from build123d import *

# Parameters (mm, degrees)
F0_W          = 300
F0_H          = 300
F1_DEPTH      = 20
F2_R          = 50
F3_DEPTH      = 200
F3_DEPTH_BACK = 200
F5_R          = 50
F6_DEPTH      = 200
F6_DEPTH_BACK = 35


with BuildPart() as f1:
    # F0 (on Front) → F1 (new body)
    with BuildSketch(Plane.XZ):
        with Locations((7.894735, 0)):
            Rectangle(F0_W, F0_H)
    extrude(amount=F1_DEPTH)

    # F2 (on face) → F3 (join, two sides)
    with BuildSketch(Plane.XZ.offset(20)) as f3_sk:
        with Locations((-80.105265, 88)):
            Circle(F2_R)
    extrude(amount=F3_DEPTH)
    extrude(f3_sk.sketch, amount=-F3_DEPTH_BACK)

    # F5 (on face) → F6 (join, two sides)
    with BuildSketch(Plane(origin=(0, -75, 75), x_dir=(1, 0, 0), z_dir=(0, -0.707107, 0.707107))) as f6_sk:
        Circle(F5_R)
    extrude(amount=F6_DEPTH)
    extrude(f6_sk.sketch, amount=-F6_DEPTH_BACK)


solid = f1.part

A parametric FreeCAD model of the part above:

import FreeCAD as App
import Part
import Sketcher
from FreeCAD import Vector
Q = App.Units.Quantity

doc = App.newDocument("Part")
body = doc.addObject("PartDesign::Body", "Body")

# Sketch on XZ plane
sketch1 = doc.addObject("Sketcher::SketchObject", "Sketch")
body.addObject(sketch1)
sketch1.AttachmentSupport = (doc.XZ_Plane, [""])
sketch1.MapMode = "FlatFace"
sketch1.addGeometry(Part.LineSegment(Vector(-142, 150, 0), Vector(-142, -150, 0)), False)
sketch1.addGeometry(Part.LineSegment(Vector(-142, -150, 0), Vector(158, -150, 0)), False)
sketch1.addGeometry(Part.LineSegment(Vector(158, -150, 0), Vector(158, 150, 0)), False)
sketch1.addGeometry(Part.LineSegment(Vector(158, 150, 0), Vector(-142, 150, 0)), False)
sketch1.addConstraint(Sketcher.Constraint("Coincident", 0, 2, 1, 1))
sketch1.addConstraint(Sketcher.Constraint("Coincident", 1, 2, 2, 1))
sketch1.addConstraint(Sketcher.Constraint("Coincident", 2, 2, 3, 1))
sketch1.addConstraint(Sketcher.Constraint("Coincident", 3, 2, 0, 1))
sketch1.addConstraint(Sketcher.Constraint("Vertical", 0))
sketch1.addConstraint(Sketcher.Constraint("Horizontal", 1))
sketch1.addConstraint(Sketcher.Constraint("Vertical", 2))
sketch1.addConstraint(Sketcher.Constraint("Horizontal", 3))
sketch1.addConstraint(Sketcher.Constraint("Equal", 3, 0))
sketch1.addConstraint(Sketcher.Constraint("DistanceX", 1, 1, 1, 2, Q("300 mm")))
sketch1.addConstraint(Sketcher.Constraint("DistanceY", 0, 2, -1, 1, Q("150 mm")))
sketch1.addConstraint(Sketcher.Constraint("DistanceX", 0, 2, -1, 1, Q("142.105265 mm")))
pad1 = doc.addObject("PartDesign::Pad", "Pad")
body.addObject(pad1)
pad1.Profile = sketch1
pad1.Length = 20

# Sketch on XZ plane
sketch2 = doc.addObject("Sketcher::SketchObject", "Sketch001")
body.addObject(sketch2)
sketch2.AttachmentSupport = (doc.XZ_Plane, [""])
sketch2.MapMode = "FlatFace"
sketch2.AttachmentOffset = App.Placement(Vector(0, 0, 20), App.Rotation())
sketch2.addGeometry(Part.Circle(Vector(-80, 88, 0), Vector(0, 0, 1), 50), False)
sketch2.addConstraint(Sketcher.Constraint("Diameter", 0, Q("100 mm")))
sketch2.addConstraint(Sketcher.Constraint("DistanceY", -1, 1, 0, 3, Q("88 mm")))
sketch2.addConstraint(Sketcher.Constraint("DistanceX", 0, 3, -1, 1, Q("80.105265 mm")))
pad2 = doc.addObject("PartDesign::Pad", "Pad001")
body.addObject(pad2)
pad2.Profile = sketch2
pad2.Type = "TwoLengths"
pad2.Length = 200
pad2.Length2 = 200

# Sketch on an angled plane
sketch3 = doc.addObject("Sketcher::SketchObject", "Sketch002")
body.addObject(sketch3)
sketch3.Placement = App.Placement(Vector(0, -75, 75), App.Rotation(Vector(1, 0, 0), Vector(0, 0.707106781, 0.707106781), Vector(0, -0.707106781, 0.707106781), "ZXY"))
sketch3.addGeometry(Part.Circle(Vector(0, 0, 0), Vector(0, 0, 1), 50), False)
sketch3.addConstraint(Sketcher.Constraint("Coincident", 0, 3, -1, 1))
sketch3.addConstraint(Sketcher.Constraint("Diameter", 0, Q("100 mm")))
pad3 = doc.addObject("PartDesign::Pad", "Pad002")
body.addObject(pad3)
pad3.Profile = sketch3
pad3.Type = "TwoLengths"
pad3.Length = 200
pad3.Length2 = 35

doc.recompute()
